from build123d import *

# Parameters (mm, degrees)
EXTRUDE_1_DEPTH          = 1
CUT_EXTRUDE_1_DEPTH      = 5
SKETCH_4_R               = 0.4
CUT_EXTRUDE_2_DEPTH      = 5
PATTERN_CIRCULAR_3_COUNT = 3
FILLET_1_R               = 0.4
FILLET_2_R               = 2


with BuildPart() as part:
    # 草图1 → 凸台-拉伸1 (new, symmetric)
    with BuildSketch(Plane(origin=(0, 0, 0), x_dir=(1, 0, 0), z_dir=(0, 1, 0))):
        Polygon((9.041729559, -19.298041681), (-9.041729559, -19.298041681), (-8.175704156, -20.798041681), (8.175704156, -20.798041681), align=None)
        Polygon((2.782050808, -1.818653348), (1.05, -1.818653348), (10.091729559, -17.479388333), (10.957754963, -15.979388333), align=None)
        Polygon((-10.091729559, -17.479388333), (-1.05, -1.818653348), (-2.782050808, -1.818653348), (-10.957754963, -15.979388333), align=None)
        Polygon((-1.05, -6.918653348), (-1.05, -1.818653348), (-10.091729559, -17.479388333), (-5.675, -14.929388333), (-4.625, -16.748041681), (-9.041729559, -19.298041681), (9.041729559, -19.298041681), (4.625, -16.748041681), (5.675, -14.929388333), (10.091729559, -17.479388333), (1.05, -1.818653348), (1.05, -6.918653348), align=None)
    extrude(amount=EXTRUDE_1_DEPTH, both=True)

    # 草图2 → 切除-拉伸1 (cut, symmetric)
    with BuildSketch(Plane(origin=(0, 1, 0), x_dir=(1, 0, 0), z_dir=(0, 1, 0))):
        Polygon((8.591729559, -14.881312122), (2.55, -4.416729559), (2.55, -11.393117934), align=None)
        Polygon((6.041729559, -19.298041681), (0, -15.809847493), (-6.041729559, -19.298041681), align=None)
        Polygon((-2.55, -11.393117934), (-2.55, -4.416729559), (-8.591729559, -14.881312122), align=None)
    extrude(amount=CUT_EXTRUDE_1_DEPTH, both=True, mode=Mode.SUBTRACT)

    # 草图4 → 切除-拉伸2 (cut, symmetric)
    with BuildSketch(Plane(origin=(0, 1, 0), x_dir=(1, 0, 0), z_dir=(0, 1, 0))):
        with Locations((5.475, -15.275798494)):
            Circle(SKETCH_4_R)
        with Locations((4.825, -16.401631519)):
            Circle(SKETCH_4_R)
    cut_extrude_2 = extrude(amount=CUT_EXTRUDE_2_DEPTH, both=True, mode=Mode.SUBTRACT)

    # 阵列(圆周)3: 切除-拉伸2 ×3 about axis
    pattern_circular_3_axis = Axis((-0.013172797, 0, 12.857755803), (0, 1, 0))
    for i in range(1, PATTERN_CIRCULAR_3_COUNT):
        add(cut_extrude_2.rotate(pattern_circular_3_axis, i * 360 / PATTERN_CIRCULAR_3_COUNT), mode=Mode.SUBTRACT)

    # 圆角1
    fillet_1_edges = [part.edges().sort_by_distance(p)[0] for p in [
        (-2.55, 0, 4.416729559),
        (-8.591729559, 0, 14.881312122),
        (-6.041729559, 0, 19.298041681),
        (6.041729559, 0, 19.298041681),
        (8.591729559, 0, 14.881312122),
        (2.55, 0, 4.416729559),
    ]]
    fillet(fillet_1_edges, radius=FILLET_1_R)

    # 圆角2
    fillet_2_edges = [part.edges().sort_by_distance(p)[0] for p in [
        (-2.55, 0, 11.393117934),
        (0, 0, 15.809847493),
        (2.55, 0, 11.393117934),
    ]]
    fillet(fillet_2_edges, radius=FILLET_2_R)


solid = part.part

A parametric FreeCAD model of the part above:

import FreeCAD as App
import Part
import Sketcher
from FreeCAD import Vector
Q = App.Units.Quantity


def edges_at(feature, points):
    """Names of the edges that pass closest to the given points."""
    edges = feature.Shape.Edges
    near = lambda p: min(range(len(edges)), key=lambda i: edges[i].distToShape(Part.Vertex(*p))[0])
    return sorted({f"Edge{near(p) + 1}" for p in points})

doc = App.newDocument("Part")
params = doc.addObject("Spreadsheet::Sheet", "Params")
for row, (alias, value) in enumerate([
    ("sketch1_width", "2.1 mm"),
    ("sketch1_height", "5.1 mm"),
    ("sketch1_length", "5.1 mm"),
    ("sketch1_length2", "2.1 mm"),
    ("pad1_length", "2 mm"),
    ("pocket1_length", "10 mm"),
    ("sketch3_diameter", "0.8 mm"),
    ("pocket2_length", "10 mm"),
    ("fillet_radius", "0.4 mm"),
    ("fillet2_radius", "2 mm"),
], start=1):
    params.set(f"A{row}", alias)
    params.set(f"B{row}", "=" + value)
    params.setAlias(f"B{row}", alias)

body = doc.addObject("PartDesign::Body", "Body")

sketch1 = body.newObject("Sketcher::SketchObject", "Sketch")
sketch1.AttachmentSupport = (doc.getObject("XZ_Plane"), [""])
sketch1.MapMode = "FlatFace"
sketch1.addGeometry([
    Part.LineSegment(Vector(-9, 19.3, 0), Vector(-8.2, 20.8, 0)),
    Part.LineSegment(Vector(-8.2, 20.8, 0), Vector(8.2, 20.8, 0)),
    Part.LineSegment(Vector(8.2, 20.8, 0), Vector(9, 19.3, 0)),
    Part.LineSegment(Vector(9, 19.3, 0), Vector(4.6, 16.7, 0)),
    Part.LineSegment(Vector(4.6, 16.7, 0), Vector(5.7, 14.9, 0)),
    Part.LineSegment(Vector(5.7, 14.9, 0), Vector(10.1, 17.5, 0)),
    Part.LineSegment(Vector(10.1, 17.5, 0), Vector(11, 16, 0)),
    Part.LineSegment(Vector(11, 16, 0), Vector(2.8, 1.8, 0)),
    Part.LineSegment(Vector(2.8, 1.8, 0), Vector(1.1, 1.8, 0)),
    Part.LineSegment(Vector(1.1, 1.8, 0), Vector(1.1, 6.9, 0)),
    Part.LineSegment(Vector(1.1, 6.9, 0), Vector(-1.1, 6.9, 0)),
    Part.LineSegment(Vector(-1.1, 6.9, 0), Vector(-1.1, 1.8, 0)),
    Part.LineSegment(Vector(-1.1, 1.8, 0), Vector(-2.8, 1.8, 0)),
    Part.LineSegment(Vector(-2.8, 1.8, 0), Vector(-11, 16, 0)),
    Part.LineSegment(Vector(-11, 16, 0), Vector(-10.1, 17.5, 0)),
    Part.LineSegment(Vector(-10.1, 17.5, 0), Vector(-5.7, 14.9, 0)),
    Part.LineSegment(Vector(-5.7, 14.9, 0), Vector(-4.6, 16.7, 0)),
    Part.LineSegment(Vector(-4.6, 16.7, 0), Vector(-9, 19.3, 0)),
], False)
sketch1.addConstraint([
    Sketcher.Constraint("Coincident", 0, 2, 1, 1),
    Sketcher.Constraint("Coincident", 1, 2, 2, 1),
    Sketcher.Constraint("Coincident", 2, 2, 3, 1),
    Sketcher.Constraint("Coincident", 3, 2, 4, 1),
    Sketcher.Constraint("Coincident", 4, 2, 5, 1),
    Sketcher.Constraint("Coincident", 5, 2, 6, 1),
    Sketcher.Constraint("Coincident", 6, 2, 7, 1),
    Sketcher.Constraint("Coincident", 7, 2, 8, 1),
    Sketcher.Constraint("Coincident", 8, 2, 9, 1),
    Sketcher.Constraint("Coincident", 9, 2, 10, 1),
    Sketcher.Constraint("Coincident", 10, 2, 11, 1),
    Sketcher.Constraint("Coincident", 11, 2, 12, 1),
    Sketcher.Constraint("Coincident", 12, 2, 13, 1),
    Sketcher.Constraint("Coincident", 13, 2, 14, 1),
    Sketcher.Constraint("Coincident", 14, 2, 15, 1),
    Sketcher.Constraint("Coincident", 15, 2, 16, 1),
    Sketcher.Constraint("Coincident", 16, 2, 17, 1),
    Sketcher.Constraint("Coincident", 17, 2, 0, 1),
    Sketcher.Constraint("Horizontal", 1),
    Sketcher.Constraint("Horizontal", 8),
    Sketcher.Constraint("Vertical", 9),
    Sketcher.Constraint("Horizontal", 10),
    Sketcher.Constraint("Vertical", 11),
    Sketcher.Constraint("Horizontal", 12),
    Sketcher.Constraint("Symmetric", 8, 2, 11, 2, -2),
    Sketcher.Constraint("Symmetric", 6, 2, 13, 2, -2),
    Sketcher.Constraint("Symmetric", 5, 2, 14, 2, -2),
    Sketcher.Constraint("Symmetric", 4, 2, 15, 2, -2),
    Sketcher.Constraint("Symmetric", 3, 2, 16, 2, -2),
    Sketcher.Constraint("Symmetric", 2, 2, 17, 2, -2),
    Sketcher.Constraint("Perpendicular", 2, 3),
    Sketcher.Constraint("Perpendicular", 3, 4),
    Sketcher.Constraint("Perpendicular", 4, 5),
    Sketcher.Constraint("Perpendicular", 5, 6),
    Sketcher.Constraint("Parallel", 0, 7),
    Sketcher.Constraint("Parallel", 6, 13),
    Sketcher.Constraint("Parallel", 7, 14),
    Sketcher.Constraint("Equal", 3, 5),
    Sketcher.Constraint("Equal", 2, 6),
    Sketcher.Constraint("Angle", 0, Q("60 deg")),
    Sketcher.Constraint("DistanceX", 10, 2, 10, 1, Q("2.1 mm")),
    Sketcher.Constraint("DistanceY", 9, 1, 9, 2, Q("5.1 mm")),
    Sketcher.Constraint("Distance", 3, Q("5.1 mm")),
    Sketcher.Constraint("Distance", 4, Q("2.1 mm")),
    Sketcher.Constraint("DistanceY", 2, 2, 1, 2, Q("1.5 mm")),
    Sketcher.Constraint("DistanceX", 16, 2, 3, 2, Q("9.25 mm")),
    Sketcher.Constraint("DistanceX", 8, 2, 8, 1, Q("1.732051 mm")),
    Sketcher.Constraint("DistanceY", -1, 1, 0, 2, Q("20.798042 mm")),
])
sketch1.setExpression("Constraints[40]", "Params.sketch1_width")
sketch1.setExpression("Constraints[41]", "Params.sketch1_height")
sketch1.setExpression("Constraints[42]", "Params.sketch1_length")
sketch1.setExpression("Constraints[43]", "Params.sketch1_length2")
pad1 = body.newObject("PartDesign::Pad", "Pad")
pad1.Profile = sketch1
pad1.setExpression("Length", "Params.pad1_length")
pad1.Midplane = True

sketch2 = body.newObject("Sketcher::SketchObject", "Sketch001")
sketch2.AttachmentSupport = (doc.getObject("XZ_Plane"), [""])
sketch2.MapMode = "FlatFace"
sketch2.AttachmentOffset = App.Placement(Vector(0, 0, -1), App.Rotation())
sketch2.addGeometry([
    Part.LineSegment(Vector(9, 15, 0), Vector(3, 4, 0)),
    Part.LineSegment(Vector(3, 4, 0), Vector(3, 11, 0)),
    Part.LineSegment(Vector(3, 11, 0), Vector(9, 15, 0)),
    Part.LineSegment(Vector(6, 19, 0), Vector(0, 16, 0)),
    Part.LineSegment(Vector(0, 16, 0), Vector(-6, 19, 0)),
    Part.LineSegment(Vector(-6, 19, 0), Vector(6, 19, 0)),
    Part.LineSegment(Vector(-3, 11, 0), Vector(-3, 4, 0)),
    Part.LineSegment(Vector(-3, 4, 0), Vector(-9, 15, 0)),
    Part.LineSegment(Vector(-9, 15, 0), Vector(-3, 11, 0)),
], False)
sketch2.addConstraint([
    Sketcher.Constraint("Coincident", 0, 2, 1, 1),
    Sketcher.Constraint("Coincident", 1, 2, 2, 1),
    Sketcher.Constraint("Coincident", 2, 2, 0, 1),
    Sketcher.Constraint("Coincident", 3, 2, 4, 1),
    Sketcher.Constraint("Coincident", 4, 2, 5, 1),
    Sketcher.Constraint("Coincident", 5, 2, 3, 1),
    Sketcher.Constraint("Coincident", 6, 2, 7, 1),
    Sketcher.Constraint("Coincident", 7, 2, 8, 1),
    Sketcher.Constraint("Coincident", 8, 2, 6, 1),
    Sketcher.Constraint("Vertical", 1),
    Sketcher.Constraint("Horizontal", 5),
    Sketcher.Constraint("Vertical", 6),
    Sketcher.Constraint("Symmetric", 0, 2, 6, 2, -2),
    Sketcher.Constraint("Symmetric", 2, 2, 7, 2, -2),
    Sketcher.Constraint("PointOnObject", 3, 2, -2),
    Sketcher.Constraint("Parallel", 2, 3),
    Sketcher.Constraint("Perpendicular", 0, 4),
    Sketcher.Constraint("Perpendicular", 3, 7),
    Sketcher.Constraint("Parallel", 4, 8),
    Sketcher.Constraint("Equal", 2, 3),
    Sketcher.Constraint("Angle", 0, Q("-120 deg")),
    Sketcher.Constraint("DistanceX", 6, 2, 0, 2, Q("5.1 mm")),
    Sketcher.Constraint("DistanceX", 5, 1, 5, 2, Q("12.083459 mm")),
    Sketcher.Constraint("DistanceY", -1, 1, 0, 2, Q("4.41673 mm")),
    Sketcher.Constraint("DistanceY", -1, 1, 4, 2, Q("19.298042 mm")),
])
pocket1 = body.newObject("PartDesign::Pocket", "Pocket")
pocket1.Profile = sketch2
pocket1.setExpression("Length", "Params.pocket1_length")
pocket1.Midplane = True

sketch3 = body.newObject("Sketcher::SketchObject", "Sketch002")
sketch3.AttachmentSupport = (doc.getObject("XZ_Plane"), [""])
sketch3.MapMode = "FlatFace"
sketch3.AttachmentOffset = App.Placement(Vector(0, 0, -1), App.Rotation())
sketch3.addGeometry([
    Part.Circle(Vector(5.47, 15.28, 0), Vector(0, 0, 1), 0.4),
    Part.Circle(Vector(4.83, 16.4, 0), Vector(0, 0, 1), 0.4),
], False)
sketch3.addConstraint([
    Sketcher.Constraint("Equal", 0, 1),
    Sketcher.Constraint("Diameter", 0, Q("0.8 mm")),
    Sketcher.Constraint("DistanceX", 1, 3, 0, 3, Q("0.65 mm")),
    Sketcher.Constraint("DistanceX", -1, 1, 0, 3, Q("5.475 mm")),
    Sketcher.Constraint("DistanceY", -1, 1, 0, 3, Q("15.275798 mm")),
    Sketcher.Constraint("DistanceY", -1, 1, 1, 3, Q("16.401632 mm")),
])
sketch3.setExpression("Constraints[1]", "Params.sketch3_diameter")
pocket2 = body.newObject("PartDesign::Pocket", "Pocket001")
pocket2.Profile = sketch3
pocket2.setExpression("Length", "Params.pocket2_length")
pocket2.Midplane = True
doc.recompute()

datumline = body.newObject("PartDesign::Line", "DatumLine")
datumline.Placement = App.Placement(Vector(-0.013173, 0, 12.857756), App.Rotation(Vector(0, 0, 1), Vector(0, 1, 0)))
polarpattern = body.newObject("PartDesign::PolarPattern", "PolarPattern")
polarpattern.Originals = [pocket2]
polarpattern.Axis = (datumline, [""])
polarpattern.Angle = 360
polarpattern.Occurrences = 3
body.Tip = polarpattern
doc.recompute()

fillet = body.newObject("PartDesign::Fillet", "Fillet")
fillet.Base = (polarpattern, edges_at(polarpattern, [
    (-2.55, 0, 4.417),
    (-8.592, 0, 14.881),
    (-6.042, 0, 19.298),
    (6.042, 0, 19.298),
    (8.592, 0, 14.881),
    (2.55, 0, 4.417),
]))
fillet.setExpression("Radius", "Params.fillet_radius")
doc.recompute()

fillet2 = body.newObject("PartDesign::Fillet", "Fillet001")
fillet2.Base = (fillet, edges_at(fillet, [(-2.55, 0, 11.393), (0, 0, 15.81), (2.55, 0, 11.393)]))
fillet2.setExpression("Radius", "Params.fillet2_radius")

doc.recompute()
